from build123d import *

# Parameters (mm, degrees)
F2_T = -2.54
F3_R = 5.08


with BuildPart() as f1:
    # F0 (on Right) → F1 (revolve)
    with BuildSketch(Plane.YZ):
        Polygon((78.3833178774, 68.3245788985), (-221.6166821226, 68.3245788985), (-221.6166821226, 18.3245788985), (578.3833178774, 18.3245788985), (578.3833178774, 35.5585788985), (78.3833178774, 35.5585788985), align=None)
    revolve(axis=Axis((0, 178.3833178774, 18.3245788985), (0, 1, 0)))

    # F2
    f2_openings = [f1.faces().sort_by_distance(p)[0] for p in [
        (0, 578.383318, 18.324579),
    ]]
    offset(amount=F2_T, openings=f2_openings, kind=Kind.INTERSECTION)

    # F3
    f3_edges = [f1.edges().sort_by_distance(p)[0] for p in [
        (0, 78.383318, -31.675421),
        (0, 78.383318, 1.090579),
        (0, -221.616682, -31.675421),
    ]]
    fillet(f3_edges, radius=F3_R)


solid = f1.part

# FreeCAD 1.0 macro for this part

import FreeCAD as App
import Part
import Sketcher
Q = App.Units.Quantity


def edges_at(feature, points):
    """Names of the edges that pass closest to the given points."""
    edges = feature.Shape.Edges
    near = lambda p: min(range(len(edges)), key=lambda i: edges[i].distToShape(Part.Vertex(*p))[0])
    return sorted({f"Edge{near(p) + 1}" for p in points})


def faces_at(feature, points):
    """Names of the faces that lie closest to the given points."""
    faces = feature.Shape.Faces
    near = lambda p: min(range(len(faces)), key=lambda i: faces[i].distToShape(Part.Vertex(*p))[0])
    return sorted({f"Face{near(p) + 1}" for p in points})

doc = App.newDocument("Part")
body = doc.addObject("PartDesign::Body", "Body")

# Sketch on YZ plane
sketch1 = body.newObject("Sketcher::SketchObject", "Sketch")
sketch1.AttachmentSupport = (doc.getObject("YZ_Plane"), [""])
sketch1.MapMode = "FlatFace"
sketch1.addGeometry([
    Part.LineSegment(App.Vector(78, 68, 0), App.Vector(-222, 68, 0)),  # 0
    Part.LineSegment(App.Vector(-222, 68, 0), App.Vector(-222, 18, 0)),  # 1
    Part.LineSegment(App.Vector(-222, 18, 0), App.Vector(578, 18, 0)),  # 2
    Part.LineSegment(App.Vector(578, 18, 0), App.Vector(578, 36, 0)),  # 3
    Part.LineSegment(App.Vector(578, 36, 0), App.Vector(78, 36, 0)),  # 4
    Part.LineSegment(App.Vector(78, 36, 0), App.Vector(78, 68, 0)),  # 5
], False)
sketch1.addGeometry(Part.LineSegment(App.Vector(-222, 18, 0), App.Vector(578, 18, 0)), True)  # axis
sketch1.addConstraint([
    Sketcher.Constraint("Coincident", 0, 2, 1, 1),
    Sketcher.Constraint("Coincident", 1, 2, 2, 1),
    Sketcher.Constraint("Coincident", 2, 2, 3, 1),
    Sketcher.Constraint("Coincident", 3, 2, 4, 1),
    Sketcher.Constraint("Coincident", 4, 2, 5, 1),
    Sketcher.Constraint("Coincident", 5, 2, 0, 1),
    Sketcher.Constraint("Horizontal", 0),
    Sketcher.Constraint("Vertical", 1),
    Sketcher.Constraint("Horizontal", 2),
    Sketcher.Constraint("Vertical", 3),
    Sketcher.Constraint("Horizontal", 4),
    Sketcher.Constraint("Vertical", 5),
    Sketcher.Constraint("Horizontal", 6),
    Sketcher.Constraint("Coincident", 6, 1, 1, 2),
    Sketcher.Constraint("Vertical", 3, 2, 6, 2),
    Sketcher.Constraint("DistanceX", 0, 2, 0, 1, Q("300 mm")),
    Sketcher.Constraint("DistanceX", 2, 1, 2, 2, Q("800 mm")),
    Sketcher.Constraint("DistanceY", 1, 2, 1, 1, Q("50 mm")),
    Sketcher.Constraint("DistanceY", 3, 1, 3, 2, Q("17.234 mm")),
    Sketcher.Constraint("DistanceY", -1, 1, 0, 2, Q("68.324579 mm")),
    Sketcher.Constraint("DistanceX", 0, 2, -1, 1, Q("221.616682 mm")),
])
revolution = body.newObject("PartDesign::Revolution", "Revolution")
revolution.Profile = sketch1
revolution.ReferenceAxis = (sketch1, ["Axis0"])
revolution.Angle = 360
doc.recompute()

thickness = body.newObject("PartDesign::Thickness", "Thickness")
thickness.Base = (revolution, faces_at(revolution, [(0, 578.383, 18.325)]))
thickness.Value = 2.54
thickness.Reversed = True
thickness.Join = "Intersection"
doc.recompute()

fillet = body.newObject("PartDesign::Fillet", "Fillet")
fillet.Base = (thickness, edges_at(thickness, [(0, 78.383, -31.675), (0, 78.383, 1.091), (0, -221.617, -31.675)]))
fillet.Radius = 5.08

doc.recompute()
